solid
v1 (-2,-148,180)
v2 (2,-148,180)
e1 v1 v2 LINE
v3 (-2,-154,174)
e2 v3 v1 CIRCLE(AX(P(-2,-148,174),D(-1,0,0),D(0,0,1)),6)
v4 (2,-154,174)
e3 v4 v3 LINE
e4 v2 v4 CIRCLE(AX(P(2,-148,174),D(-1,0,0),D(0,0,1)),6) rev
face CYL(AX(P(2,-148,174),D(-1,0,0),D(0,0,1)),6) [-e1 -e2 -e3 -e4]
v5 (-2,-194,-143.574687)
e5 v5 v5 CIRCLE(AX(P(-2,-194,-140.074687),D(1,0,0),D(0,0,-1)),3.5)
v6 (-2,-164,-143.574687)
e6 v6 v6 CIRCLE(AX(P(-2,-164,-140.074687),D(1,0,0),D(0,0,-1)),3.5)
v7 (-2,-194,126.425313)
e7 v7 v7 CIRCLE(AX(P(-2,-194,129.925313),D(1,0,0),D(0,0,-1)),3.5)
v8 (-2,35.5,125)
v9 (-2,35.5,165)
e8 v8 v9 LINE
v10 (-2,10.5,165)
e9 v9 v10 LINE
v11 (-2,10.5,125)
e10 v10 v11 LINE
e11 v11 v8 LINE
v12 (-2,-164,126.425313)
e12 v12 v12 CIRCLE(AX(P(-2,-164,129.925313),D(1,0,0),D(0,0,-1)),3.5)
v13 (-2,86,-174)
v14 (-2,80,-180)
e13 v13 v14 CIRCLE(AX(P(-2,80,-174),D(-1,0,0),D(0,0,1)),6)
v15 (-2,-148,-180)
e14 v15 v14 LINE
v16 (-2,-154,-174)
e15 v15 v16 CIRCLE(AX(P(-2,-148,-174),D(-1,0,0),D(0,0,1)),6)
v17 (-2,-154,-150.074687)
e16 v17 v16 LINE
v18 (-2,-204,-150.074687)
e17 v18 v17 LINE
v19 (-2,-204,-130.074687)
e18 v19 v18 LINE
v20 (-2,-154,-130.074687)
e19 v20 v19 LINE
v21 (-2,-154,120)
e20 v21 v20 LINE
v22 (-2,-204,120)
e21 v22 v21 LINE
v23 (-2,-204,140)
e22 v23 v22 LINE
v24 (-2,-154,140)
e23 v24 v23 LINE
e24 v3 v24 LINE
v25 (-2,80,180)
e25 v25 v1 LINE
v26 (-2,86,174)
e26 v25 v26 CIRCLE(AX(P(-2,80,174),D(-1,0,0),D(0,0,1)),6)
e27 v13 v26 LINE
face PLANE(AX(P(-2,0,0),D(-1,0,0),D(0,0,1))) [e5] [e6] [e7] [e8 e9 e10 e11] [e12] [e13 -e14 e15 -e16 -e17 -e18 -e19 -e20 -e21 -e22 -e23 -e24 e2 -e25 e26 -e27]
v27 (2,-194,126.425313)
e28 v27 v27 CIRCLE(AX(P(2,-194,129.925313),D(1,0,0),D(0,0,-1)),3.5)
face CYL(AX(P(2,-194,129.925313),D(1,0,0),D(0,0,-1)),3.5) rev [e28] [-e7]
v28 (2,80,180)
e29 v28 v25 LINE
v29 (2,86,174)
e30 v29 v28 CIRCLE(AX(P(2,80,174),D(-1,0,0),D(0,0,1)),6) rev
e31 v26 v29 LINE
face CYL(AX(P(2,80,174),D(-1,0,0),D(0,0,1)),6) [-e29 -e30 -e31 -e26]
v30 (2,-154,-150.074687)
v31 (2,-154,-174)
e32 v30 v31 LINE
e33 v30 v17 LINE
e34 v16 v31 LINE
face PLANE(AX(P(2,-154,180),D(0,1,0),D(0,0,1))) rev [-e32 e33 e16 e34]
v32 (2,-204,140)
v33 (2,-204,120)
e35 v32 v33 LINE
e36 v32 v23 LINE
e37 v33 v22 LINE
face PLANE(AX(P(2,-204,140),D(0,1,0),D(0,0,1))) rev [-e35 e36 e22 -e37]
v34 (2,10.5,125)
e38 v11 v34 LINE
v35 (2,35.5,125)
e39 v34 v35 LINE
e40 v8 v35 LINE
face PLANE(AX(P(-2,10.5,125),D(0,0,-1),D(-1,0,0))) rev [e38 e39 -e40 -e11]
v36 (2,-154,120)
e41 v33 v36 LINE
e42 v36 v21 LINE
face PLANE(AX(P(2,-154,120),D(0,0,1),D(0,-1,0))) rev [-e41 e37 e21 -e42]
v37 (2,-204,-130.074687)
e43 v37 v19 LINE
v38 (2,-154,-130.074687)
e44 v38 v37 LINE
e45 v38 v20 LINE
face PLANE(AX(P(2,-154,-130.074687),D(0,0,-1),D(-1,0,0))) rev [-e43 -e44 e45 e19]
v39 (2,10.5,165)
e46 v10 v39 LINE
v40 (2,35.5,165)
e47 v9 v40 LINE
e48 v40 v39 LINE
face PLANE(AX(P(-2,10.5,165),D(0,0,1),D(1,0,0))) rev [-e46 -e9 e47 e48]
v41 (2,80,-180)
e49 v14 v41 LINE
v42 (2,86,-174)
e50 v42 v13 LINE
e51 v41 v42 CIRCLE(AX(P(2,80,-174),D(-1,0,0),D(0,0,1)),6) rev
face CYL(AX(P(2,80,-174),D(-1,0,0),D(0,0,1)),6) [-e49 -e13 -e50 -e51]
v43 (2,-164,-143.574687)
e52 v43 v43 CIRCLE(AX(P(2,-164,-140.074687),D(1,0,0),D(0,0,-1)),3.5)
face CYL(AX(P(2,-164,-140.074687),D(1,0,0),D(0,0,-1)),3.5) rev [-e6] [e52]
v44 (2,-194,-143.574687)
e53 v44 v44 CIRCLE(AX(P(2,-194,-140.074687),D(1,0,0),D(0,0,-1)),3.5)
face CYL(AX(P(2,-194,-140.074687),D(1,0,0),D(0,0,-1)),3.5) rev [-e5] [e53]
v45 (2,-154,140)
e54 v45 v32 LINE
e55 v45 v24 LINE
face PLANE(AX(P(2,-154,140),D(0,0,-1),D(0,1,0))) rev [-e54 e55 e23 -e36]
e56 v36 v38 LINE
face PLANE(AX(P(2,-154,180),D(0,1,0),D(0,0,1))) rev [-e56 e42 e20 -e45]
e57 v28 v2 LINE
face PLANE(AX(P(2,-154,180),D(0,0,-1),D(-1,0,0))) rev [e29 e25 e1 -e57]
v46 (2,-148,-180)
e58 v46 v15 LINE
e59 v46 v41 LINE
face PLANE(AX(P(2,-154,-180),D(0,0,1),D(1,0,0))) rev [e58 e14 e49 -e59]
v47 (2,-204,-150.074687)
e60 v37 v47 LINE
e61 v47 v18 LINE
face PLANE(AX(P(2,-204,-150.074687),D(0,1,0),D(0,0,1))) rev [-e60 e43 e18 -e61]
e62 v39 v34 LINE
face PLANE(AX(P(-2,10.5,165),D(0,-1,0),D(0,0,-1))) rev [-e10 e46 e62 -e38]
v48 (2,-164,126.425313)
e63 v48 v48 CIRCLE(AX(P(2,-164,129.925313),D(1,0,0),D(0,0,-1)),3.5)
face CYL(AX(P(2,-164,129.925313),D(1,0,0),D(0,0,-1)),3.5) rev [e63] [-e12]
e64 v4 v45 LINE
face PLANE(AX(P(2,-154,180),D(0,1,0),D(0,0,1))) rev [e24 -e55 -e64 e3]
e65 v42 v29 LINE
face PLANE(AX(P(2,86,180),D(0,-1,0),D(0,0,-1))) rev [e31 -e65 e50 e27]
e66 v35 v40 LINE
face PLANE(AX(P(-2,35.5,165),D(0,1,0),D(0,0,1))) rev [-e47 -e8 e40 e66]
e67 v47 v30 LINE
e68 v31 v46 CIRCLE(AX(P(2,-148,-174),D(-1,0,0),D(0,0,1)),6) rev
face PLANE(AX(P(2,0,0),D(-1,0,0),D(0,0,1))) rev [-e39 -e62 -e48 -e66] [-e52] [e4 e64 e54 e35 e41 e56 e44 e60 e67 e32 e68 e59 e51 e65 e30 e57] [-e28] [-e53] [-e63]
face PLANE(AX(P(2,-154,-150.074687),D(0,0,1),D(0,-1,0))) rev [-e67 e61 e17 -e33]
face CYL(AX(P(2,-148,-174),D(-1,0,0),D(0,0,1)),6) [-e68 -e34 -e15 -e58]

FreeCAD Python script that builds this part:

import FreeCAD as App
import Part
import Sketcher


def edges_at(feature, points):
    """Names of the edges that pass closest to the given points."""
    edges = feature.Shape.Edges
    near = lambda p: min(range(len(edges)), key=lambda i: edges[i].distToShape(Part.Vertex(*p))[0])
    return sorted({f"Edge{near(p) + 1}" for p in points})

doc = App.newDocument("Part")
body = doc.addObject("PartDesign::Body", "Body")

# Sketch on YZ plane
sketch1 = body.newObject("Sketcher::SketchObject", "Sketch")
sketch1.AttachmentSupport = (doc.getObject("YZ_Plane"), [""])
sketch1.MapMode = "FlatFace"
sketch1.addGeometry([
    Part.LineSegment(App.Vector(86, 180, 0), App.Vector(-154, 180, 0)),
    Part.LineSegment(App.Vector(-154, 180, 0), App.Vector(-154, -180, 0)),
    Part.LineSegment(App.Vector(-154, -180, 0), App.Vector(86, -180, 0)),
    Part.LineSegment(App.Vector(86, -180, 0), App.Vector(86, 180, 0)),
], False)
sketch1.addConstraint([
    Sketcher.Constraint("Coincident", 0, 2, 1, 1),
    Sketcher.Constraint("Coincident", 1, 2, 2, 1),
    Sketcher.Constraint("Coincident", 2, 2, 3, 1),
    Sketcher.Constraint("Coincident", 3, 2, 0, 1),
    Sketcher.Constraint("Horizontal", 0),
    Sketcher.Constraint("Vertical", 1),
    Sketcher.Constraint("Horizontal", 2),
    Sketcher.Constraint("Vertical", 3),
    Sketcher.Constraint("DistanceX", 0, 2, 0, 1, 240.0),
    Sketcher.Constraint("DistanceY", 1, 2, 1, 1, 360.0),
    Sketcher.Constraint("DistanceX", 0, 2, -1, 1, 154.0),
    Sketcher.Constraint("DistanceY", -1, 1, 0, 2, 180.0),
])
pad1 = body.newObject("PartDesign::Pad", "Pad")
pad1.Profile = sketch1
pad1.Length = 4
pad1.Midplane = True
doc.recompute()

fillet = body.newObject("PartDesign::Fillet", "Fillet")
fillet.Base = (pad1, edges_at(pad1, [
    (0, -154, -180),
    (0, -154, 180),
    (0, 86, 180),
    (0, 86, -180),
]))
fillet.Radius = 6

# Sketch on YZ plane
sketch2 = body.newObject("Sketcher::SketchObject", "Sketch001")
sketch2.AttachmentSupport = (doc.getObject("YZ_Plane"), [""])
sketch2.MapMode = "FlatFace"
sketch2.AttachmentOffset = App.Placement(App.Vector(0, 0, 2), App.Rotation())
sketch2.addGeometry([
    Part.LineSegment(App.Vector(36, 165, 0), App.Vector(10, 165, 0)),
    Part.LineSegment(App.Vector(10, 165, 0), App.Vector(10, 125, 0)),
    Part.LineSegment(App.Vector(10, 125, 0), App.Vector(36, 125, 0)),
    Part.LineSegment(App.Vector(36, 125, 0), App.Vector(36, 165, 0)),
], False)
sketch2.addConstraint([
    Sketcher.Constraint("Coincident", 0, 2, 1, 1),
    Sketcher.Constraint("Coincident", 1, 2, 2, 1),
    Sketcher.Constraint("Coincident", 2, 2, 3, 1),
    Sketcher.Constraint("Coincident", 3, 2, 0, 1),
    Sketcher.Constraint("Horizontal", 0),
    Sketcher.Constraint("Vertical", 1),
    Sketcher.Constraint("Horizontal", 2),
    Sketcher.Constraint("Vertical", 3),
    Sketcher.Constraint("DistanceX", 0, 2, 0, 1, 25.0),
    Sketcher.Constraint("DistanceY", 1, 2, 1, 1, 40.0),
    Sketcher.Constraint("DistanceY", -1, 1, 0, 2, 165.0),
    Sketcher.Constraint("DistanceX", -1, 1, 0, 2, 10.5),
])
pocket1 = body.newObject("PartDesign::Pocket", "Pocket")
pocket1.Profile = sketch2
pocket1.Type = "ThroughAll"

# Sketch on YZ plane
sketch3 = body.newObject("Sketcher::SketchObject", "Sketch002")
sketch3.AttachmentSupport = (doc.getObject("YZ_Plane"), [""])
sketch3.MapMode = "FlatFace"
sketch3.addGeometry([
    Part.LineSegment(App.Vector(-154, 140, 0), App.Vector(-204, 140, 0)),  # 0
    Part.LineSegment(App.Vector(-204, 140, 0), App.Vector(-204, 120, 0)),  # 1
    Part.LineSegment(App.Vector(-204, 120, 0), App.Vector(-154, 120, 0)),  # 2
    Part.LineSegment(App.Vector(-154, 120, 0), App.Vector(-154, 140, 0)),  # 3
    Part.LineSegment(App.Vector(-154, -130, 0), App.Vector(-204, -130, 0)),  # 4
    Part.LineSegment(App.Vector(-204, -130, 0), App.Vector(-204, -150, 0)),  # 5
    Part.LineSegment(App.Vector(-204, -150, 0), App.Vector(-154, -150, 0)),  # 6
    Part.LineSegment(App.Vector(-154, -150, 0), App.Vector(-154, -130, 0)),  # 7
], False)
sketch3.addConstraint([
    Sketcher.Constraint("Coincident", 0, 2, 1, 1),
    Sketcher.Constraint("Coincident", 1, 2, 2, 1),
    Sketcher.Constraint("Coincident", 2, 2, 3, 1),
    Sketcher.Constraint("Coincident", 3, 2, 0, 1),
    Sketcher.Constraint("Coincident", 4, 2, 5, 1),
    Sketcher.Constraint("Coincident", 5, 2, 6, 1),
    Sketcher.Constraint("Coincident", 6, 2, 7, 1),
    Sketcher.Constraint("Coincident", 7, 2, 4, 1),
    Sketcher.Constraint("Horizontal", 0),
    Sketcher.Constraint("Vertical", 1),
    Sketcher.Constraint("Horizontal", 2),
    Sketcher.Constraint("Vertical", 3),
    Sketcher.Constraint("Horizontal", 4),
    Sketcher.Constraint("Vertical", 5),
    Sketcher.Constraint("Horizontal", 6),
    Sketcher.Constraint("Vertical", 7),
    Sketcher.Constraint("Vertical", 1, 2, 4, 2),
    Sketcher.Constraint("Vertical", 3, 2, 6, 2),
    Sketcher.Constraint("Equal", 3, 5),
    Sketcher.Constraint("DistanceX", 0, 2, 0, 1, 50.0),
    Sketcher.Constraint("DistanceY", 1, 2, 1, 1, 20.0),
    Sketcher.Constraint("DistanceX", 0, 2, -1, 1, 204.0),
    Sketcher.Constraint("DistanceY", -1, 1, 0, 2, 140.0),
    Sketcher.Constraint("DistanceY", 4, 2, -1, 1, 130.074687),
])
pad2 = body.newObject("PartDesign::Pad", "Pad001")
pad2.Profile = sketch3
pad2.Length = 4
pad2.Midplane = True

# Sketch on YZ plane
sketch4 = body.newObject("Sketcher::SketchObject", "Sketch003")
sketch4.AttachmentSupport = (doc.getObject("YZ_Plane"), [""])
sketch4.MapMode = "FlatFace"
sketch4.AttachmentOffset = App.Placement(App.Vector(0, 0, 2), App.Rotation())
sketch4.addGeometry([
    Part.Circle(App.Vector(-194, 129.9, 0), App.Vector(0, 0, 1), 3.5),
    Part.Circle(App.Vector(-164, 129.9, 0), App.Vector(0, 0, 1), 3.5),
    Part.Circle(App.Vector(-194, -140.1, 0), App.Vector(0, 0, 1), 3.5),
    Part.Circle(App.Vector(-164, -140.1, 0), App.Vector(0, 0, 1), 3.5),
], False)
sketch4.addConstraint([
    Sketcher.Constraint("Equal", 0, 1),
    Sketcher.Constraint("Equal", 1, 2),
    Sketcher.Constraint("Equal", 2, 3),
    Sketcher.Constraint("Horizontal", 0, 3, 1, 3),
    Sketcher.Constraint("Horizontal", 2, 3, 3, 3),
    Sketcher.Constraint("Vertical", 0, 3, 2, 3),
    Sketcher.Constraint("Vertical", 1, 3, 3, 3),
    Sketcher.Constraint("Diameter", 0, 7.0),
    Sketcher.Constraint("DistanceX", 0, 3, -1, 1, 194.0),
    Sketcher.Constraint("DistanceX", 1, 3, -1, 1, 164.0),
    Sketcher.Constraint("DistanceY", 2, 3, 0, 3, 270.0),
    Sketcher.Constraint("DistanceY", -1, 1, 0, 3, 129.925313),
])
doc.recompute()
hole = body.newObject("PartDesign::Hole", "Hole")
hole.Profile = sketch4
hole.ThreadType = "None"
hole.Diameter = 7
hole.DepthType = "ThroughAll"

doc.recompute()
